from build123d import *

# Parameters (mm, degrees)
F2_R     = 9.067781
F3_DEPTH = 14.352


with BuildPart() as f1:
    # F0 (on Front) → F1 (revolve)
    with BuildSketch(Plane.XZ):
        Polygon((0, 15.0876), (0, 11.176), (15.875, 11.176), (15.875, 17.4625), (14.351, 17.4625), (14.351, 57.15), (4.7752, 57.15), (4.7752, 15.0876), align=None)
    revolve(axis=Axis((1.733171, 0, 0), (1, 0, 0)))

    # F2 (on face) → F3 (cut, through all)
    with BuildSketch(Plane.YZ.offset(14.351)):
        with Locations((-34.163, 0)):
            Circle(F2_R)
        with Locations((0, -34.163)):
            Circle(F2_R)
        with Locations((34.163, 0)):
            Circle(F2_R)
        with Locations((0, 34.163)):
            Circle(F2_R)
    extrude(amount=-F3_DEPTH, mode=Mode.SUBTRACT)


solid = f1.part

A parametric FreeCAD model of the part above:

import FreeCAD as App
import Part
import Sketcher
Q = App.Units.Quantity

doc = App.newDocument("Part")
body = doc.addObject("PartDesign::Body", "Body")

# Sketch on XZ plane
sketch1 = doc.addObject("Sketcher::SketchObject", "Sketch")
body.addObject(sketch1)
sketch1.AttachmentSupport = (doc.XZ_Plane, [""])
sketch1.MapMode = "FlatFace"
sketch1.addGeometry(Part.LineSegment(App.Vector(0, 15.1, 0), App.Vector(0, 11.2, 0)), False)
sketch1.addGeometry(Part.LineSegment(App.Vector(0, 11.2, 0), App.Vector(15.9, 11.2, 0)), False)
sketch1.addGeometry(Part.LineSegment(App.Vector(15.9, 11.2, 0), App.Vector(15.9, 17.5, 0)), False)
sketch1.addGeometry(Part.LineSegment(App.Vector(15.9, 17.5, 0), App.Vector(14.4, 17.5, 0)), False)
sketch1.addGeometry(Part.LineSegment(App.Vector(14.4, 17.5, 0), App.Vector(14.4, 57.1, 0)), False)
sketch1.addGeometry(Part.LineSegment(App.Vector(14.4, 57.1, 0), App.Vector(4.8, 57.1, 0)), False)
sketch1.addGeometry(Part.LineSegment(App.Vector(4.8, 57.1, 0), App.Vector(4.8, 15.1, 0)), False)
sketch1.addGeometry(Part.LineSegment(App.Vector(4.8, 15.1, 0), App.Vector(0, 15.1, 0)), False)
sketch1.addConstraint(Sketcher.Constraint("Coincident", 0, 2, 1, 1))
sketch1.addConstraint(Sketcher.Constraint("Coincident", 1, 2, 2, 1))
sketch1.addConstraint(Sketcher.Constraint("Coincident", 2, 2, 3, 1))
sketch1.addConstraint(Sketcher.Constraint("Coincident", 3, 2, 4, 1))
sketch1.addConstraint(Sketcher.Constraint("Coincident", 4, 2, 5, 1))
sketch1.addConstraint(Sketcher.Constraint("Coincident", 5, 2, 6, 1))
sketch1.addConstraint(Sketcher.Constraint("Coincident", 6, 2, 7, 1))
sketch1.addConstraint(Sketcher.Constraint("Coincident", 7, 2, 0, 1))
sketch1.addConstraint(Sketcher.Constraint("Vertical", 0))
sketch1.addConstraint(Sketcher.Constraint("Horizontal", 1))
sketch1.addConstraint(Sketcher.Constraint("Vertical", 2))
sketch1.addConstraint(Sketcher.Constraint("Horizontal", 3))
sketch1.addConstraint(Sketcher.Constraint("Vertical", 4))
sketch1.addConstraint(Sketcher.Constraint("Horizontal", 5))
sketch1.addConstraint(Sketcher.Constraint("Vertical", 6))
sketch1.addConstraint(Sketcher.Constraint("Horizontal", 7))
sketch1.addConstraint(Sketcher.Constraint("PointOnObject", 0, 2, -2))
sketch1.addConstraint(Sketcher.Constraint("DistanceX", 3, 2, 3, 1, Q("0.06 in")))
sketch1.addConstraint(Sketcher.Constraint("DistanceX", 1, 1, 1, 2, Q("0.625 in")))
sketch1.addConstraint(Sketcher.Constraint("DistanceX", 5, 2, 5, 1, Q("0.377 in")))
sketch1.addConstraint(Sketcher.Constraint("DistanceY", 0, 2, 0, 1, Q("0.154 in")))
sketch1.addConstraint(Sketcher.Constraint("DistanceY", 4, 1, 4, 2, Q("1.5625 in")))
sketch1.addConstraint(Sketcher.Constraint("DistanceY", 6, 2, 6, 1, Q("1.656 in")))
sketch1.addConstraint(Sketcher.Constraint("DistanceY", -1, 1, 0, 2, Q("0.44 in")))
revolution = doc.addObject("PartDesign::Revolution", "Revolution")
body.addObject(revolution)
revolution.Profile = sketch1
revolution.ReferenceAxis = (sketch1, ["H_Axis"])
revolution.Angle = 360

# Sketch on YZ plane
sketch2 = doc.addObject("Sketcher::SketchObject", "Sketch001")
body.addObject(sketch2)
sketch2.AttachmentSupport = (doc.YZ_Plane, [""])
sketch2.MapMode = "FlatFace"
sketch2.AttachmentOffset = App.Placement(App.Vector(0, 0, 0.565 * 25.4), App.Rotation())
sketch2.addGeometry(Part.Circle(App.Vector(-34, 0, 0), App.Vector(0, 0, 1), 9), False)
sketch2.addGeometry(Part.Circle(App.Vector(0, -34, 0), App.Vector(0, 0, 1), 9), False)
sketch2.addGeometry(Part.Circle(App.Vector(34, 0, 0), App.Vector(0, 0, 1), 9), False)
sketch2.addGeometry(Part.Circle(App.Vector(0, 34, 0), App.Vector(0, 0, 1), 9), False)
sketch2.addConstraint(Sketcher.Constraint("Equal", 0, 1))
sketch2.addConstraint(Sketcher.Constraint("Equal", 1, 2))
sketch2.addConstraint(Sketcher.Constraint("Equal", 2, 3))
sketch2.addConstraint(Sketcher.Constraint("Symmetric", 0, 3, 2, 3, -1, 1))
sketch2.addConstraint(Sketcher.Constraint("Symmetric", 1, 3, 3, 3, -1, 1))
sketch2.addConstraint(Sketcher.Constraint("PointOnObject", 0, 3, -1))
sketch2.addConstraint(Sketcher.Constraint("PointOnObject", 1, 3, -2))
sketch2.addConstraint(Sketcher.Constraint("DistanceX", 0, 3, 2, 3, Q("2.69 in")))
sketch2.addConstraint(Sketcher.Constraint("DistanceY", 1, 3, 3, 3, Q("2.69 in")))
sketch2.addConstraint(Sketcher.Constraint("Diameter", 0, Q("18.135562 mm")))
pocket1 = doc.addObject("PartDesign::Pocket", "Pocket")
body.addObject(pocket1)
pocket1.Profile = sketch2
pocket1.Type = "ThroughAll"

doc.recompute()
